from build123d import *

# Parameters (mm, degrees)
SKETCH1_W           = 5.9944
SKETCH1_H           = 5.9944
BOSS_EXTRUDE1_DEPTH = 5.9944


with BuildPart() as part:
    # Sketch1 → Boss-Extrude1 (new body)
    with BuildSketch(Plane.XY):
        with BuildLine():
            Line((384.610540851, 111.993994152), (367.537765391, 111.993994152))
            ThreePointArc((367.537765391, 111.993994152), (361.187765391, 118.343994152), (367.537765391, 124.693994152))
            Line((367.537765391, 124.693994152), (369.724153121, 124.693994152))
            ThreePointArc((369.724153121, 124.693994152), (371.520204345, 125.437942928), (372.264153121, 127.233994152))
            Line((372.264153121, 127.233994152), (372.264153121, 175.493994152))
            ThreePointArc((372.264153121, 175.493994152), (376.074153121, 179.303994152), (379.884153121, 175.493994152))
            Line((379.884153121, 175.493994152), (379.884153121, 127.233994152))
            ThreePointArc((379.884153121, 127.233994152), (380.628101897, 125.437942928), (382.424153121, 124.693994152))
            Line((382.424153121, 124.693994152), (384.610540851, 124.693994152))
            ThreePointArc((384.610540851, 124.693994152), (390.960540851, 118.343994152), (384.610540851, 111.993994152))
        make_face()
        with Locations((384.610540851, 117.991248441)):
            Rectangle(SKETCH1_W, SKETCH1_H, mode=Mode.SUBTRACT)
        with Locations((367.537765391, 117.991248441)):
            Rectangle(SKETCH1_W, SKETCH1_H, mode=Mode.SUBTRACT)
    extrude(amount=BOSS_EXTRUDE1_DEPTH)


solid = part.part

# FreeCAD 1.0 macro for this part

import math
import FreeCAD as App
import Part
import Sketcher

V = App.Vector
Q = App.Units.Quantity


def add_polygon(sketch, points):
    """Adds a closed chain of lines whose ends are joined by coincident constraints."""
    first, n = sketch.GeometryCount, len(points)
    for a, b in zip(points, points[1:] + points[:1]):
        sketch.addGeometry(Part.LineSegment(App.Vector(*a, 0), App.Vector(*b, 0)), False)
    for i in range(n):
        sketch.addConstraint(Sketcher.Constraint("Coincident", first + i, 2, first + (i + 1) % n, 1))

doc = App.newDocument("Part")
body = doc.addObject("PartDesign::Body", "Body")

# Sketch on XY plane
sketch1 = body.newObject("Sketcher::SketchObject", "Sketch")
sketch1.AttachmentSupport = (doc.getObject("XY_Plane"), [""])
sketch1.MapMode = "FlatFace"
sketch1.addGeometry(Part.LineSegment(V(367.5, 112, 0), V(384.6, 112, 0)), False)  # 0
sketch1.addGeometry(Part.ArcOfCircle(Part.Circle(V(384.6, 118.3, 0), V(0, 0, 1), 6.3), math.radians(-90), math.radians(90)), False)  # 1
sketch1.addGeometry(Part.LineSegment(V(384.6, 124.7, 0), V(382.4, 124.7, 0)), False)  # 2
sketch1.addGeometry(Part.ArcOfCircle(Part.Circle(V(382.4, 127.2, 0), V(0, 0, 1), 2.5), math.radians(-180), math.radians(-90)), False)  # 3
sketch1.addGeometry(Part.LineSegment(V(379.9, 127.2, 0), V(379.9, 175.5, 0)), False)  # 4
sketch1.addGeometry(Part.ArcOfCircle(Part.Circle(V(376.1, 175.5, 0), V(0, 0, 1), 3.8), math.radians(0), math.radians(180)), False)  # 5
sketch1.addGeometry(Part.LineSegment(V(372.3, 175.5, 0), V(372.3, 127.2, 0)), False)  # 6
sketch1.addGeometry(Part.ArcOfCircle(Part.Circle(V(369.7, 127.2, 0), V(0, 0, 1), 2.5), math.radians(-90), math.radians(0)), False)  # 7
sketch1.addGeometry(Part.LineSegment(V(369.7, 124.7, 0), V(367.5, 124.7, 0)), False)  # 8
sketch1.addGeometry(Part.ArcOfCircle(Part.Circle(V(367.5, 118.3, 0), V(0, 0, 1), 6.3), math.radians(90), math.radians(270)), False)  # 9
add_polygon(sketch1, [(381.6, 115), (381.6, 121), (387.6, 121), (387.6, 115)])  # lines 10-13
add_polygon(sketch1, [(364.5, 115), (364.5, 121), (370.5, 121), (370.5, 115)])  # lines 14-17
sketch1.addConstraint(Sketcher.Constraint("Tangent", 0, 2, 1, 1))
sketch1.addConstraint(Sketcher.Constraint("Tangent", 1, 2, 2, 1))
sketch1.addConstraint(Sketcher.Constraint("Tangent", 2, 2, 3, 2))
sketch1.addConstraint(Sketcher.Constraint("Tangent", 3, 1, 4, 1))
sketch1.addConstraint(Sketcher.Constraint("Tangent", 4, 2, 5, 1))
sketch1.addConstraint(Sketcher.Constraint("Tangent", 5, 2, 6, 1))
sketch1.addConstraint(Sketcher.Constraint("Tangent", 6, 2, 7, 2))
sketch1.addConstraint(Sketcher.Constraint("Tangent", 7, 1, 8, 1))
sketch1.addConstraint(Sketcher.Constraint("Tangent", 8, 2, 9, 1))
sketch1.addConstraint(Sketcher.Constraint("Tangent", 9, 2, 0, 1))
sketch1.addConstraint(Sketcher.Constraint("Horizontal", 0))
sketch1.addConstraint(Sketcher.Constraint("Horizontal", 2))
sketch1.addConstraint(Sketcher.Constraint("Vertical", 4))
sketch1.addConstraint(Sketcher.Constraint("Vertical", 6))
sketch1.addConstraint(Sketcher.Constraint("Horizontal", 8))
sketch1.addConstraint(Sketcher.Constraint("Vertical", 10))
sketch1.addConstraint(Sketcher.Constraint("Horizontal", 11))
sketch1.addConstraint(Sketcher.Constraint("Vertical", 12))
sketch1.addConstraint(Sketcher.Constraint("Horizontal", 13))
sketch1.addConstraint(Sketcher.Constraint("Vertical", 14))
sketch1.addConstraint(Sketcher.Constraint("Horizontal", 15))
sketch1.addConstraint(Sketcher.Constraint("Vertical", 16))
sketch1.addConstraint(Sketcher.Constraint("Horizontal", 17))
sketch1.addConstraint(Sketcher.Constraint("Equal", 3, 7))
sketch1.addConstraint(Sketcher.Constraint("Equal", 1, 9))
sketch1.addConstraint(Sketcher.Constraint("Horizontal", 11, 2, 14, 2))
sketch1.addConstraint(Sketcher.Constraint("Horizontal", 13, 2, 16, 2))
sketch1.addConstraint(Sketcher.Constraint("Equal", 2, 8))
sketch1.addConstraint(Sketcher.Constraint("Equal", 13, 15))
sketch1.addConstraint(Sketcher.Constraint("Equal", 17, 10))
sketch1.addConstraint(Sketcher.Constraint("Radius", 3, Q("0.1 in")))
sketch1.addConstraint(Sketcher.Constraint("Radius", 1, Q("0.25 in")))
sketch1.addConstraint(Sketcher.Constraint("Radius", 5, Q("0.15 in")))
sketch1.addConstraint(Sketcher.Constraint("DistanceY", 4, 1, 4, 2, Q("1.9 in")))
sketch1.addConstraint(Sketcher.Constraint("DistanceX", 11, 1, 11, 2, Q("0.236 in")))
sketch1.addConstraint(Sketcher.Constraint("DistanceX", 10, 2, 1, 3, Q("0.118 in")))
sketch1.addConstraint(Sketcher.Constraint("DistanceX", 14, 2, 9, 3, Q("0.118 in")))
sketch1.addConstraint(Sketcher.Constraint("DistanceX", 0, 1, 0, 2, 17.072775))
sketch1.addConstraint(Sketcher.Constraint("DistanceX", -1, 1, 1, 3, 384.610541))
sketch1.addConstraint(Sketcher.Constraint("DistanceY", -1, 1, 10, 2, 120.988448))
sketch1.addConstraint(Sketcher.Constraint("DistanceY", -1, 1, 1, 3, 118.343994))
pad1 = body.newObject("PartDesign::Pad", "Pad")
pad1.Profile = sketch1
pad1.Length = Q("0.236 in")

doc.recompute()
